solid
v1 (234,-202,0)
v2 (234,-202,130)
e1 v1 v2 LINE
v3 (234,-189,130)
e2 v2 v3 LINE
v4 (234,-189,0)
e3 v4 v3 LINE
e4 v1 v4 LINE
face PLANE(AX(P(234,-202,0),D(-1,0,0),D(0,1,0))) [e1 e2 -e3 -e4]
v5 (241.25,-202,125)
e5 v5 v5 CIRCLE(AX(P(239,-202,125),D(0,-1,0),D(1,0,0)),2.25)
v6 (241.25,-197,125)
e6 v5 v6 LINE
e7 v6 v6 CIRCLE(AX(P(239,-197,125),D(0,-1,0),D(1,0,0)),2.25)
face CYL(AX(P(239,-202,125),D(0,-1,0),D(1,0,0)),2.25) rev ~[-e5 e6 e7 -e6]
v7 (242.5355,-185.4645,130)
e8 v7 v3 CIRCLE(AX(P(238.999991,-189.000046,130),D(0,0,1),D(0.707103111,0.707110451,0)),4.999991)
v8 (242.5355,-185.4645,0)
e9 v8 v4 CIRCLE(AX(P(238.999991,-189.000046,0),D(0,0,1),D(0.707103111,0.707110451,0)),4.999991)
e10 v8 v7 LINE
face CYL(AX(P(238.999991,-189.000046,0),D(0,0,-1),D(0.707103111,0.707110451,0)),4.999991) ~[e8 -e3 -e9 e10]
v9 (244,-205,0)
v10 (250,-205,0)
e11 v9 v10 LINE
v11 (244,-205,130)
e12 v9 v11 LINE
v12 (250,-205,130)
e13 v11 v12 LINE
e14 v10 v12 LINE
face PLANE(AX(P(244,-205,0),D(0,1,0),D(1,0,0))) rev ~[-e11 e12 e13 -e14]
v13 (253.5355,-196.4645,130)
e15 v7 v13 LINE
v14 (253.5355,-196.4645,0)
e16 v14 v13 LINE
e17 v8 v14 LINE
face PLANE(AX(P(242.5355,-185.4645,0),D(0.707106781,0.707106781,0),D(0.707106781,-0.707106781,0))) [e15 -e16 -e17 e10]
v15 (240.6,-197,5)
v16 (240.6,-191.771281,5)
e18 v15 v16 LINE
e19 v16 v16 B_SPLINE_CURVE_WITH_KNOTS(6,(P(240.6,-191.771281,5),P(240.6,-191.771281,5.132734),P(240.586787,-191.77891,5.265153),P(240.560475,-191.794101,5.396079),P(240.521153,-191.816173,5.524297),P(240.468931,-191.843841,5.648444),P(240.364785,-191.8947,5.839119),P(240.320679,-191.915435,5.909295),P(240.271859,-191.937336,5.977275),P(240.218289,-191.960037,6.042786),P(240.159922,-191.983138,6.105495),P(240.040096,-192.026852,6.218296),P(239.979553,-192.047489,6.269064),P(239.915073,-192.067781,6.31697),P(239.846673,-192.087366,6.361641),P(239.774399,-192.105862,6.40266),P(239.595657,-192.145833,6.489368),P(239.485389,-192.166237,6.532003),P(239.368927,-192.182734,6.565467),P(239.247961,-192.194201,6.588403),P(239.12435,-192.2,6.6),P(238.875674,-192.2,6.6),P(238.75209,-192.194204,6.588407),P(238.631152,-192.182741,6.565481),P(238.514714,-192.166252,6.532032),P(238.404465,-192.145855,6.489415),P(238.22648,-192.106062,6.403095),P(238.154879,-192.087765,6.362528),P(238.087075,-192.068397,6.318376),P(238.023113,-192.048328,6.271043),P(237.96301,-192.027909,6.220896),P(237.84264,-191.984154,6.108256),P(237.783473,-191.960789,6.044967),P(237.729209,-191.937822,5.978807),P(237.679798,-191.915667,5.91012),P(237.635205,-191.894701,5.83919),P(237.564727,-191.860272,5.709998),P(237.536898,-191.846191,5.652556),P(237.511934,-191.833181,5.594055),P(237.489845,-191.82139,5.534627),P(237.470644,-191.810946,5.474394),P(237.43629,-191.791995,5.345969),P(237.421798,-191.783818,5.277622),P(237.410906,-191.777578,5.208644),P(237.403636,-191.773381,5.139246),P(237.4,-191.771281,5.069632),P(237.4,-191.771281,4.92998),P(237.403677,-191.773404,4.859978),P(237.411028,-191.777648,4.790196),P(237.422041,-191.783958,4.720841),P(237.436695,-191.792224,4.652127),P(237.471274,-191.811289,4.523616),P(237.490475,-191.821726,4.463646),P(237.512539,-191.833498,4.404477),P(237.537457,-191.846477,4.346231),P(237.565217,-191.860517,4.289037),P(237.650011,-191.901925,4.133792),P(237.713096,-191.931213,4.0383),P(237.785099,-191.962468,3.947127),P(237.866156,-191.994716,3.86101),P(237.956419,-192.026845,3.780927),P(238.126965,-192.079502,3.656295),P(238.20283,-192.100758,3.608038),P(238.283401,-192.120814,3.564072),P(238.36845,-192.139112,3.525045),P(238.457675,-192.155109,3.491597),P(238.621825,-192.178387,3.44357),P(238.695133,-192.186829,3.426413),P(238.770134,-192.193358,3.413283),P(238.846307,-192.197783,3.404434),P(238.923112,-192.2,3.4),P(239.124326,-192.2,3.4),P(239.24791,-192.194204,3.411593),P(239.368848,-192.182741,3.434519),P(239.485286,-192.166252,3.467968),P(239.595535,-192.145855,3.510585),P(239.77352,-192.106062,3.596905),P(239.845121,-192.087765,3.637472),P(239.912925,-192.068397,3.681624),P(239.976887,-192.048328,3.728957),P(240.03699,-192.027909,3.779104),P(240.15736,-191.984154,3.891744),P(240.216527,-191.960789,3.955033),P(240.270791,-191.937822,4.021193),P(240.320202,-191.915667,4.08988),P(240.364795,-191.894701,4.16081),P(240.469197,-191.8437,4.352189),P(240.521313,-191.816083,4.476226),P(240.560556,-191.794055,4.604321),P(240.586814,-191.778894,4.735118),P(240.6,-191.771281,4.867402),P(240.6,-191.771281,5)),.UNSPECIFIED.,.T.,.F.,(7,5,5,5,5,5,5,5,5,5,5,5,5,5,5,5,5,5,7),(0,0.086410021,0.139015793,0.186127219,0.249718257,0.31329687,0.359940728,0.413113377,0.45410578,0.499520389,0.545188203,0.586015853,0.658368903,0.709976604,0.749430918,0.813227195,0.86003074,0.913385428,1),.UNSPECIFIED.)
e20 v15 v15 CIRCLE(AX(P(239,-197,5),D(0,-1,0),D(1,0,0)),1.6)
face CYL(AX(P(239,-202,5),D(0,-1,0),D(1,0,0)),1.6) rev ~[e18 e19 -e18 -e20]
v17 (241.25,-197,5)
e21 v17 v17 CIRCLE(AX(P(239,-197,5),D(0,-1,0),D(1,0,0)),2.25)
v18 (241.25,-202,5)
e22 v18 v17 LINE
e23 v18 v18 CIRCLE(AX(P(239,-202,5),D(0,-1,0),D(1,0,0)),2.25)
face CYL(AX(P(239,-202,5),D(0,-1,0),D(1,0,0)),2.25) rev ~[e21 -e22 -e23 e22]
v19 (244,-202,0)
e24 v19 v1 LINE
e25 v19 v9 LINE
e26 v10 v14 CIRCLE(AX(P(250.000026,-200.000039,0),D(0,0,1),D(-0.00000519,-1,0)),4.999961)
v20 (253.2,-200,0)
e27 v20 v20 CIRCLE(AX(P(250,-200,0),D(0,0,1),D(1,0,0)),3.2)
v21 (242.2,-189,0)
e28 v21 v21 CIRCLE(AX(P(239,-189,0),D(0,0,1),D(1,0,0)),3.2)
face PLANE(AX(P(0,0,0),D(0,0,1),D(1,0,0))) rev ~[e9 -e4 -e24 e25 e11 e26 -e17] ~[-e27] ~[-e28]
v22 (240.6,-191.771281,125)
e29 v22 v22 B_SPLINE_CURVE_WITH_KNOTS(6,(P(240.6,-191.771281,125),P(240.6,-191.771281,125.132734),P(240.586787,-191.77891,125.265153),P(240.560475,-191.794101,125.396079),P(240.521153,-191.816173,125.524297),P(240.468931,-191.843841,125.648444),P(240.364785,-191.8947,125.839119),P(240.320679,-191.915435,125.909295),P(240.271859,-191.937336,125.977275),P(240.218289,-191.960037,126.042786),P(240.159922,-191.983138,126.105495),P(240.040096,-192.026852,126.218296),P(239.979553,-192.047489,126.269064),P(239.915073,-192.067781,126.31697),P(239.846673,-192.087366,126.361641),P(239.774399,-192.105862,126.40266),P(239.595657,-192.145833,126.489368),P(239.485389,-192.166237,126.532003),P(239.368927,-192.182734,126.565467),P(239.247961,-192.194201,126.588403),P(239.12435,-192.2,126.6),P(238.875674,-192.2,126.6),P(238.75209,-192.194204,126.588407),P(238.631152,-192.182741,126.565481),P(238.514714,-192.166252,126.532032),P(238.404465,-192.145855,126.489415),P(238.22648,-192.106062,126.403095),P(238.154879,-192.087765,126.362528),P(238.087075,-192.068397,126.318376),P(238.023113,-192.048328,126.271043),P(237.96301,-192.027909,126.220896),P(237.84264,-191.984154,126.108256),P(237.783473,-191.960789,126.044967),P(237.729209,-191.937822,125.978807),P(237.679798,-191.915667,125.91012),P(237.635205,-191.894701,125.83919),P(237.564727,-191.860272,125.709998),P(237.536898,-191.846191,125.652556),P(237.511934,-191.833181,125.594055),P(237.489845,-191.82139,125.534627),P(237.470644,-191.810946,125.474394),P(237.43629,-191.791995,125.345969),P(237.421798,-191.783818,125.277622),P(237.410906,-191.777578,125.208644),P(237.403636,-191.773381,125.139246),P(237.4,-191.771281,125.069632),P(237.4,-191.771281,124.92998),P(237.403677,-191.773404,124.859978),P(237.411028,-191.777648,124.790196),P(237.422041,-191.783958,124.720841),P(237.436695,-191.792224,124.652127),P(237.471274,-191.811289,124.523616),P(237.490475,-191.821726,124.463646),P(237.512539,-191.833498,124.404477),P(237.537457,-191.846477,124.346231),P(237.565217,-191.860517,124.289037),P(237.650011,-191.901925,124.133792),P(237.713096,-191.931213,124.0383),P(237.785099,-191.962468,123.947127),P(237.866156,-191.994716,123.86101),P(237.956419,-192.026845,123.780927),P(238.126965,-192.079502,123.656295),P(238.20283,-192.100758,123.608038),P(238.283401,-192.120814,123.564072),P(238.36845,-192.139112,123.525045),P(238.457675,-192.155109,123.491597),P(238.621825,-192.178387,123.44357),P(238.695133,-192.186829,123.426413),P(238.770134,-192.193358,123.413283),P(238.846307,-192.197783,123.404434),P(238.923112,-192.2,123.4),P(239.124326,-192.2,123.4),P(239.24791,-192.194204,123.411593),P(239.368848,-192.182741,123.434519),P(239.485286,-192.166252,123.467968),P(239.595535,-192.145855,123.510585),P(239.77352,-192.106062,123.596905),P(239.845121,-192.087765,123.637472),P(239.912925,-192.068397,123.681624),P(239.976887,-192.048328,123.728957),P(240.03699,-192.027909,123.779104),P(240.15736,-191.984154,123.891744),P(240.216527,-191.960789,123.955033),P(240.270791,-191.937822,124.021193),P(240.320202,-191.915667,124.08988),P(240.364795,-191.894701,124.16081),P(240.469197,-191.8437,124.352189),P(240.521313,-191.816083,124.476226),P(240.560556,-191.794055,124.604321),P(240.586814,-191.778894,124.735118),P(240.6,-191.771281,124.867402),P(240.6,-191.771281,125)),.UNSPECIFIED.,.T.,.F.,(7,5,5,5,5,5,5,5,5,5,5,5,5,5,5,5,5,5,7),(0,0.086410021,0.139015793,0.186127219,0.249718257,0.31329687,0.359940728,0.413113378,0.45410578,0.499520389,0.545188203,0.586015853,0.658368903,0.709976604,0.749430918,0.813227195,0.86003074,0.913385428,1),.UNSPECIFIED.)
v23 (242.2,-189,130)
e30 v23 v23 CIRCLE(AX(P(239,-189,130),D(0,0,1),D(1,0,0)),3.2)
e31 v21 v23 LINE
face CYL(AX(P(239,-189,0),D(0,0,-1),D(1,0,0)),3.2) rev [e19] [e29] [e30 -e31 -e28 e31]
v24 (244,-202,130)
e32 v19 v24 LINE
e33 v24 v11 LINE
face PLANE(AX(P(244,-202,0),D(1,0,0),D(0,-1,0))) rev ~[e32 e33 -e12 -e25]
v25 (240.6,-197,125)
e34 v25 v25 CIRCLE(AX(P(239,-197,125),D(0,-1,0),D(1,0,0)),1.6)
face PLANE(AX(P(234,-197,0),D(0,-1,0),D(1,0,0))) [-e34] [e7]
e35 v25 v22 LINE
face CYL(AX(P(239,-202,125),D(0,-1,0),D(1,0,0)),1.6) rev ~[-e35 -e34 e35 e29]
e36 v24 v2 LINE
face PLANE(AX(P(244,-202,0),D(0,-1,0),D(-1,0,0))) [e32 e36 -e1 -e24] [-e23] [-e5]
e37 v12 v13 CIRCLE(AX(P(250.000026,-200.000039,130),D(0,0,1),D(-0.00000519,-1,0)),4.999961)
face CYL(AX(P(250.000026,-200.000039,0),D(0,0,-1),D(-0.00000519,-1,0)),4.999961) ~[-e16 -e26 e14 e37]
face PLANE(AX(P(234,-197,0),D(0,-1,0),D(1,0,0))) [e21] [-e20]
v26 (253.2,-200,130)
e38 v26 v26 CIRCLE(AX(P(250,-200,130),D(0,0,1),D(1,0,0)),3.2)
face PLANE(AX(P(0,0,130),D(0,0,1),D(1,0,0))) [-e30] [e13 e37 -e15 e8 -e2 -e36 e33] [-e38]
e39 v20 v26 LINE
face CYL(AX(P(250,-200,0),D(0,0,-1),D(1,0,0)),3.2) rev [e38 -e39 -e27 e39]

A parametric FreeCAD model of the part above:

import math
import FreeCAD as App
import Part
import Sketcher
from FreeCAD import Vector

doc = App.newDocument("Part")
params = doc.addObject("Spreadsheet::Sheet", "Params")
for row, (alias, value) in enumerate([
    ("sketch1_radius", "5 mm"),
    ("sketch1_diameter", "6.4 mm"),
    ("sketch1_width", "10 mm"),
    ("sketch1_height", "3 mm"),
    ("sketch1_width2", "6 mm"),
    ("pad1_length", "130 mm"),
    ("sketch2_diameter", "4.5 mm"),
    ("pocket1_length", "5 mm"),
    ("sketch3_diameter", "3.2 mm"),
    ("pocket2_length", "13 mm"),
], start=1):
    params.set(f"A{row}", alias)
    params.set(f"B{row}", "=" + value)
    params.setAlias(f"B{row}", alias)

body = doc.addObject("PartDesign::Body", "Body")

sketch1 = doc.addObject("Sketcher::SketchObject", "Sketch")
body.addObject(sketch1)
sketch1.AttachmentSupport = (doc.XY_Plane, [""])
sketch1.MapMode = "FlatFace"
sketch1.addGeometry(Part.LineSegment(Vector(253.5, -196.5, 0), Vector(242.5, -185.5, 0)), False)
sketch1.addGeometry(Part.ArcOfCircle(Part.Circle(Vector(239, -189, 0), Vector(0, 0, 1), 5), math.radians(45), math.radians(180)), False)
sketch1.addGeometry(Part.LineSegment(Vector(234, -189, 0), Vector(234, -202, 0)), False)
sketch1.addGeometry(Part.LineSegment(Vector(234, -202, 0), Vector(244, -202, 0)), False)
sketch1.addGeometry(Part.LineSegment(Vector(244, -202, 0), Vector(244, -205, 0)), False)
sketch1.addGeometry(Part.LineSegment(Vector(244, -205, 0), Vector(250, -205, 0)), False)
sketch1.addGeometry(Part.ArcOfCircle(Part.Circle(Vector(250, -200, 0), Vector(0, 0, 1), 5), math.radians(-90), math.radians(45)), False)
sketch1.addGeometry(Part.Circle(Vector(250, -200, 0), Vector(0, 0, 1), 3.2), False)
sketch1.addGeometry(Part.Circle(Vector(239, -189, 0), Vector(0, 0, 1), 3.2), False)
sketch1.addConstraint(Sketcher.Constraint("Tangent", 0, 2, 1, 1))
sketch1.addConstraint(Sketcher.Constraint("Tangent", 1, 2, 2, 1))
sketch1.addConstraint(Sketcher.Constraint("Coincident", 2, 2, 3, 1))
sketch1.addConstraint(Sketcher.Constraint("Coincident", 3, 2, 4, 1))
sketch1.addConstraint(Sketcher.Constraint("Coincident", 4, 2, 5, 1))
sketch1.addConstraint(Sketcher.Constraint("Tangent", 5, 2, 6, 1))
sketch1.addConstraint(Sketcher.Constraint("Tangent", 6, 2, 0, 1))
sketch1.addConstraint(Sketcher.Constraint("Vertical", 2))
sketch1.addConstraint(Sketcher.Constraint("Horizontal", 3))
sketch1.addConstraint(Sketcher.Constraint("Vertical", 4))
sketch1.addConstraint(Sketcher.Constraint("Horizontal", 5))
sketch1.addConstraint(Sketcher.Constraint("Coincident", 7, 3, 6, 3))
sketch1.addConstraint(Sketcher.Constraint("Coincident", 8, 3, 1, 3))
sketch1.addConstraint(Sketcher.Constraint("Equal", 1, 6))
sketch1.addConstraint(Sketcher.Constraint("Equal", 7, 8))
sketch1.addConstraint(Sketcher.Constraint("Radius", 1, 5.0))
sketch1.addConstraint(Sketcher.Constraint("Diameter", 7, 6.4))
sketch1.addConstraint(Sketcher.Constraint("DistanceX", 3, 1, 3, 2, 10.0))
sketch1.addConstraint(Sketcher.Constraint("DistanceY", 4, 2, 4, 1, 3.0))
sketch1.addConstraint(Sketcher.Constraint("DistanceX", 5, 1, 5, 2, 6.0))
sketch1.addConstraint(Sketcher.Constraint("DistanceY", 2, 2, 2, 1, 13.0))
sketch1.addConstraint(Sketcher.Constraint("DistanceX", -1, 1, 1, 3, 239.0))
sketch1.addConstraint(Sketcher.Constraint("DistanceY", 1, 3, -1, 1, 189.0))
sketch1.setExpression("Constraints[15]", "Params.sketch1_radius")
sketch1.setExpression("Constraints[16]", "Params.sketch1_diameter")
sketch1.setExpression("Constraints[17]", "Params.sketch1_width")
sketch1.setExpression("Constraints[18]", "Params.sketch1_height")
sketch1.setExpression("Constraints[19]", "Params.sketch1_width2")
pad1 = doc.addObject("PartDesign::Pad", "Pad")
body.addObject(pad1)
pad1.Profile = sketch1
pad1.setExpression("Length", "Params.pad1_length")

sketch2 = doc.addObject("Sketcher::SketchObject", "Sketch001")
body.addObject(sketch2)
sketch2.AttachmentSupport = (doc.XZ_Plane, [""])
sketch2.MapMode = "FlatFace"
sketch2.AttachmentOffset = App.Placement(Vector(0, 0, 202), App.Rotation())
sketch2.addGeometry(Part.Circle(Vector(239, 125, 0), Vector(0, 0, 1), 2.2), False)
sketch2.addGeometry(Part.Circle(Vector(239, 5, 0), Vector(0, 0, 1), 2.2), False)
sketch2.addConstraint(Sketcher.Constraint("Equal", 0, 1))
sketch2.addConstraint(Sketcher.Constraint("Vertical", 0, 3, 1, 3))
sketch2.addConstraint(Sketcher.Constraint("Diameter", 0, 4.5))
sketch2.addConstraint(Sketcher.Constraint("DistanceY", -1, 1, 1, 3, 5.0))
sketch2.addConstraint(Sketcher.Constraint("DistanceX", -1, 1, 0, 3, 239.0))
sketch2.addConstraint(Sketcher.Constraint("DistanceY", -1, 1, 0, 3, 125.0))
sketch2.setExpression("Constraints[2]", "Params.sketch2_diameter")
pocket1 = doc.addObject("PartDesign::Pocket", "Pocket")
body.addObject(pocket1)
pocket1.Profile = sketch2
pocket1.setExpression("Length", "Params.pocket1_length")

sketch3 = doc.addObject("Sketcher::SketchObject", "Sketch002")
body.addObject(sketch3)
sketch3.AttachmentSupport = (doc.XZ_Plane, [""])
sketch3.MapMode = "FlatFace"
sketch3.AttachmentOffset = App.Placement(Vector(0, 0, 202), App.Rotation())
sketch3.addGeometry(Part.Circle(Vector(239, 125, 0), Vector(0, 0, 1), 1.6), False)
sketch3.addGeometry(Part.Circle(Vector(239, 5, 0), Vector(0, 0, 1), 1.6), False)
sketch3.addConstraint(Sketcher.Constraint("Equal", 0, 1))
sketch3.addConstraint(Sketcher.Constraint("Vertical", 0, 3, 1, 3))
sketch3.addConstraint(Sketcher.Constraint("Diameter", 0, 3.2))
sketch3.addConstraint(Sketcher.Constraint("DistanceX", -1, 1, 0, 3, 239.0))
sketch3.addConstraint(Sketcher.Constraint("DistanceY", -1, 1, 0, 3, 125.0))
sketch3.addConstraint(Sketcher.Constraint("DistanceY", -1, 1, 1, 3, 5.0))
sketch3.setExpression("Constraints[2]", "Params.sketch3_diameter")
pocket2 = doc.addObject("PartDesign::Pocket", "Pocket001")
body.addObject(pocket2)
pocket2.Profile = sketch3
pocket2.setExpression("Length", "Params.pocket2_length")

doc.recompute()
